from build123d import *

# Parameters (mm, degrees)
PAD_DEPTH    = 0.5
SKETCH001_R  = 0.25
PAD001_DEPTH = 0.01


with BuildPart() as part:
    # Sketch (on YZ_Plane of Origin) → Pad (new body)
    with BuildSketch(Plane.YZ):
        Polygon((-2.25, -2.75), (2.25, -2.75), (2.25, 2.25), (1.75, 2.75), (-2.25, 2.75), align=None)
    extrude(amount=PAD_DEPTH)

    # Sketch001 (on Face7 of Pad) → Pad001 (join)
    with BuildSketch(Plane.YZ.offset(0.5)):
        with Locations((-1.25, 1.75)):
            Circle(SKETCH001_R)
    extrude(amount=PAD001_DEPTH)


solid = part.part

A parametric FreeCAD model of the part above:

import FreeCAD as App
import Part
import Sketcher
from FreeCAD import Vector
Q = App.Units.Quantity

doc = App.newDocument("Part")
body = doc.addObject("PartDesign::Body", "Body")

sketch1 = doc.addObject("Sketcher::SketchObject", "Sketch")
body.addObject(sketch1)
sketch1.AttachmentSupport = (doc.YZ_Plane, [""])
sketch1.MapMode = "FlatFace"
sketch1.addGeometry(Part.LineSegment(Vector(-2.2, -2.8, 0), Vector(2.2, -2.8, 0)), False)
sketch1.addGeometry(Part.LineSegment(Vector(2.2, -2.8, 0), Vector(2.2, 2.2, 0)), False)
sketch1.addGeometry(Part.LineSegment(Vector(2.2, 2.2, 0), Vector(1.8, 2.8, 0)), False)
sketch1.addGeometry(Part.LineSegment(Vector(1.8, 2.8, 0), Vector(-2.2, 2.8, 0)), False)
sketch1.addGeometry(Part.LineSegment(Vector(-2.2, 2.8, 0), Vector(-2.2, -2.8, 0)), False)
sketch1.addConstraint(Sketcher.Constraint("Coincident", 0, 2, 1, 1))
sketch1.addConstraint(Sketcher.Constraint("Coincident", 1, 2, 2, 1))
sketch1.addConstraint(Sketcher.Constraint("Coincident", 2, 2, 3, 1))
sketch1.addConstraint(Sketcher.Constraint("Coincident", 3, 2, 4, 1))
sketch1.addConstraint(Sketcher.Constraint("Coincident", 4, 2, 0, 1))
sketch1.addConstraint(Sketcher.Constraint("Horizontal", 0))
sketch1.addConstraint(Sketcher.Constraint("Vertical", 1))
sketch1.addConstraint(Sketcher.Constraint("Horizontal", 3))
sketch1.addConstraint(Sketcher.Constraint("Vertical", 4))
sketch1.addConstraint(Sketcher.Constraint("Symmetric", 0, 2, 3, 2, -1, 1))
sketch1.addConstraint(Sketcher.Constraint("DistanceX", 3, 2, 3, 1, 4.0))
sketch1.addConstraint(Sketcher.Constraint("DistanceY", 1, 1, 1, 2, 5.0))
sketch1.addConstraint(Sketcher.Constraint("Angle", 2, Q("135 deg")))
sketch1.addConstraint(Sketcher.Constraint("DistanceX", 0, 1, 0, 2, 4.5))
pad1 = doc.addObject("PartDesign::Pad", "Pad")
body.addObject(pad1)
pad1.Profile = sketch1
pad1.Length = 0.5

sketch2 = doc.addObject("Sketcher::SketchObject", "Sketch001")
body.addObject(sketch2)
sketch2.AttachmentSupport = (doc.YZ_Plane, [""])
sketch2.MapMode = "FlatFace"
sketch2.AttachmentOffset = App.Placement(Vector(0, 0, 0.5), App.Rotation())
sketch2.addGeometry(Part.Circle(Vector(-1.25, 1.75, 0), Vector(0, 0, 1), 0.25), False)
sketch2.addConstraint(Sketcher.Constraint("Diameter", 0, 0.5))
sketch2.addConstraint(Sketcher.Constraint("DistanceX", 0, 3, -1, 1, 1.25))
sketch2.addConstraint(Sketcher.Constraint("DistanceY", -1, 1, 0, 3, 1.75))
pad2 = doc.addObject("PartDesign::Pad", "Pad001")
body.addObject(pad2)
pad2.Profile = sketch2
pad2.Length = 0.01

doc.recompute()
